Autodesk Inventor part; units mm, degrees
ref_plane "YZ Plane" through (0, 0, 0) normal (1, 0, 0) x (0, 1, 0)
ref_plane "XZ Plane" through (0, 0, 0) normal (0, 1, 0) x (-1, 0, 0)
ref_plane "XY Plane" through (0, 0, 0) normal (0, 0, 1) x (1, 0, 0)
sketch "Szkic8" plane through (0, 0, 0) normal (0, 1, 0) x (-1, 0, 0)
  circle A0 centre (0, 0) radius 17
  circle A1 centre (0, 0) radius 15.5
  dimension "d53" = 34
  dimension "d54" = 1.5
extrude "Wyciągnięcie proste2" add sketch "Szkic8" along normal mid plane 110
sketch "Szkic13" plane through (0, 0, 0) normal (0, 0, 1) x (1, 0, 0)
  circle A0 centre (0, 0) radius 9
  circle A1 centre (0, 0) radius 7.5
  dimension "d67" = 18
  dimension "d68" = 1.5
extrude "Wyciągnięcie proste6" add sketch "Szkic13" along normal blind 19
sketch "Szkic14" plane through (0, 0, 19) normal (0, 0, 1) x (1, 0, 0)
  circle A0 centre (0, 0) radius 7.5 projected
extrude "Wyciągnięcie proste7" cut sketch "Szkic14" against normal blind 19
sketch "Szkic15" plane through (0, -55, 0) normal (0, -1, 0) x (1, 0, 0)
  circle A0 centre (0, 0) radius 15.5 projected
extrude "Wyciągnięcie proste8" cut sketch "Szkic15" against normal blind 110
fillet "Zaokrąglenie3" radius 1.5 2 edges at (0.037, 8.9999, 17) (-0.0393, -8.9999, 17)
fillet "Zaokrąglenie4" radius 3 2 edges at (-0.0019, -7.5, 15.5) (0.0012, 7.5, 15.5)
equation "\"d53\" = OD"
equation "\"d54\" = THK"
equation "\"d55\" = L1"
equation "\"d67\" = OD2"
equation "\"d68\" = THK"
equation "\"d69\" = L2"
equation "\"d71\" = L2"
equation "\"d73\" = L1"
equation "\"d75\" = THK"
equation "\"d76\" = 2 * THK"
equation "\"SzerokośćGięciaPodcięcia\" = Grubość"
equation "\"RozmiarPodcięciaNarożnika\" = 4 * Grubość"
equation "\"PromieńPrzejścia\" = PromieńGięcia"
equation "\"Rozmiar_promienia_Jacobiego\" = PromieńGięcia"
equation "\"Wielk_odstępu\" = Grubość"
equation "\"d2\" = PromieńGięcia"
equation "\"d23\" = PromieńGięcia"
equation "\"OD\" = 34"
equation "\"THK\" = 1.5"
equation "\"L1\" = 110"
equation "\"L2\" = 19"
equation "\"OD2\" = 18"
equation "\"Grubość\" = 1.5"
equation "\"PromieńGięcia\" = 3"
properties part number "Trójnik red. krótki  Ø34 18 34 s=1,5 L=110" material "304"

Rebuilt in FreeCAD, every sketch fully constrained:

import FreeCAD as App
import Part
import Sketcher
Q = App.Units.Quantity


def edges_at(feature, points):
    """Names of the edges that pass closest to the given points."""
    edges = feature.Shape.Edges
    near = lambda p: min(range(len(edges)), key=lambda i: edges[i].distToShape(Part.Vertex(*p))[0])
    return sorted({f"Edge{near(p) + 1}" for p in points})

doc = App.newDocument("Part")
body = doc.addObject("PartDesign::Body", "Body")

sketch1 = body.newObject("Sketcher::SketchObject", "Sketch")
sketch1.AttachmentSupport = (doc.getObject("XZ_Plane"), [""])
sketch1.MapMode = "FlatFace"
sketch1.addGeometry(Part.Circle(App.Vector(0, 0, 0), App.Vector(0, 0, 1), 17), False)
sketch1.addGeometry(Part.Circle(App.Vector(0, 0, 0), App.Vector(0, 0, 1), 16), False)
sketch1.addConstraint(Sketcher.Constraint("Coincident", 0, 3, -1, 1))
sketch1.addConstraint(Sketcher.Constraint("Coincident", 1, 3, -1, 1))
sketch1.addConstraint(Sketcher.Constraint("Diameter", 0, Q("34 mm")))
sketch1.addConstraint(Sketcher.Constraint("Diameter", 1, Q("31 mm")))
pad1 = body.newObject("PartDesign::Pad", "Pad")
pad1.Profile = sketch1
pad1.Length = 110
pad1.Midplane = True

sketch2 = body.newObject("Sketcher::SketchObject", "Sketch001")
sketch2.AttachmentSupport = (doc.getObject("XY_Plane"), [""])
sketch2.MapMode = "FlatFace"
sketch2.addGeometry(Part.Circle(App.Vector(0, 0, 0), App.Vector(0, 0, 1), 9), False)
sketch2.addGeometry(Part.Circle(App.Vector(0, 0, 0), App.Vector(0, 0, 1), 8), False)
sketch2.addConstraint(Sketcher.Constraint("Coincident", 0, 3, -1, 1))
sketch2.addConstraint(Sketcher.Constraint("Coincident", 1, 3, -1, 1))
sketch2.addConstraint(Sketcher.Constraint("Diameter", 0, Q("18 mm")))
sketch2.addConstraint(Sketcher.Constraint("Diameter", 1, Q("15 mm")))
pad2 = body.newObject("PartDesign::Pad", "Pad001")
pad2.Profile = sketch2
pad2.Length = 19

sketch3 = body.newObject("Sketcher::SketchObject", "Sketch002")
sketch3.AttachmentSupport = (doc.getObject("XY_Plane"), [""])
sketch3.MapMode = "FlatFace"
sketch3.AttachmentOffset = App.Placement(App.Vector(0, 0, 19), App.Rotation())
sketch3.addGeometry(Part.Circle(App.Vector(0, 0, 0), App.Vector(0, 0, 1), 8), False)
sketch3.addConstraint(Sketcher.Constraint("Coincident", 0, 3, -1, 1))
sketch3.addConstraint(Sketcher.Constraint("Diameter", 0, Q("15 mm")))
pocket1 = body.newObject("PartDesign::Pocket", "Pocket")
pocket1.Profile = sketch3
pocket1.Length = 19

sketch4 = body.newObject("Sketcher::SketchObject", "Sketch003")
sketch4.AttachmentSupport = (doc.getObject("XZ_Plane"), [""])
sketch4.MapMode = "FlatFace"
sketch4.AttachmentOffset = App.Placement(App.Vector(0, 0, 55), App.Rotation())
sketch4.addGeometry(Part.Circle(App.Vector(0, 0, 0), App.Vector(0, 0, 1), 16), False)
sketch4.addConstraint(Sketcher.Constraint("Coincident", 0, 3, -1, 1))
sketch4.addConstraint(Sketcher.Constraint("Diameter", 0, Q("31 mm")))
pocket2 = body.newObject("PartDesign::Pocket", "Pocket001")
pocket2.Profile = sketch4
pocket2.Length = 110
doc.recompute()

fillet = body.newObject("PartDesign::Fillet", "Fillet")
fillet.Base = (pocket2, edges_at(pocket2, [(0.037, 9, 17), (-0.039, -9, 17)]))
fillet.Radius = 1.5
doc.recompute()

fillet2 = body.newObject("PartDesign::Fillet", "Fillet001")
fillet2.Base = (fillet, edges_at(fillet, [(-0.002, -7.5, 15.5), (0.001, 7.5, 15.5)]))
fillet2.Radius = 3

doc.recompute()
